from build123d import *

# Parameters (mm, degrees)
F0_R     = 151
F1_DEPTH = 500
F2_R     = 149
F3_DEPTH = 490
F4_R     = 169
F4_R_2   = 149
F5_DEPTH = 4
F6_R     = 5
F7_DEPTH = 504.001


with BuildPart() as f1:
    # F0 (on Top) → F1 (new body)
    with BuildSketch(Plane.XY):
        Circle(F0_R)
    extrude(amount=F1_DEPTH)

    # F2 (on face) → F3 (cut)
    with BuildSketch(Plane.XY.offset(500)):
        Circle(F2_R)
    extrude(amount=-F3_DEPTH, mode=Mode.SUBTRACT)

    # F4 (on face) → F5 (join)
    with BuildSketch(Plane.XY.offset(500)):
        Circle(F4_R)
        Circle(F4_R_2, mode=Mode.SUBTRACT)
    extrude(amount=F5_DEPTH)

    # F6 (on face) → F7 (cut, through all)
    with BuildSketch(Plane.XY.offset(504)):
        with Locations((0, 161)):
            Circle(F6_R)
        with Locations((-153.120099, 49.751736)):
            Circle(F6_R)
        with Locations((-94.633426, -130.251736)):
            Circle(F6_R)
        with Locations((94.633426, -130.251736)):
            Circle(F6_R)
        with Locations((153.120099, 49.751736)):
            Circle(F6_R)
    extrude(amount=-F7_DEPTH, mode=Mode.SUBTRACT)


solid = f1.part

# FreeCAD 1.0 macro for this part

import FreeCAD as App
import Part
import Sketcher

doc = App.newDocument("Part")
body = doc.addObject("PartDesign::Body", "Body")

# Sketch on XY plane
sketch1 = doc.addObject("Sketcher::SketchObject", "Sketch")
body.addObject(sketch1)
sketch1.AttachmentSupport = (doc.XY_Plane, [""])
sketch1.MapMode = "FlatFace"
sketch1.addGeometry(Part.Circle(App.Vector(0, 0, 0), App.Vector(0, 0, 1), 151), False)
sketch1.addConstraint(Sketcher.Constraint("Coincident", 0, 3, -1, 1))
sketch1.addConstraint(Sketcher.Constraint("Diameter", 0, 302.0))
pad1 = doc.addObject("PartDesign::Pad", "Pad")
body.addObject(pad1)
pad1.Profile = sketch1
pad1.Length = 500

# Sketch on XY plane
sketch2 = doc.addObject("Sketcher::SketchObject", "Sketch001")
body.addObject(sketch2)
sketch2.AttachmentSupport = (doc.XY_Plane, [""])
sketch2.MapMode = "FlatFace"
sketch2.AttachmentOffset = App.Placement(App.Vector(0, 0, 500), App.Rotation())
sketch2.addGeometry(Part.Circle(App.Vector(0, 0, 0), App.Vector(0, 0, 1), 149), False)
sketch2.addConstraint(Sketcher.Constraint("Coincident", 0, 3, -1, 1))
sketch2.addConstraint(Sketcher.Constraint("Diameter", 0, 298.0))
pocket1 = doc.addObject("PartDesign::Pocket", "Pocket")
body.addObject(pocket1)
pocket1.Profile = sketch2
pocket1.Length = 490

# Sketch on XY plane
sketch3 = doc.addObject("Sketcher::SketchObject", "Sketch002")
body.addObject(sketch3)
sketch3.AttachmentSupport = (doc.XY_Plane, [""])
sketch3.MapMode = "FlatFace"
sketch3.AttachmentOffset = App.Placement(App.Vector(0, 0, 500), App.Rotation())
sketch3.addGeometry(Part.Circle(App.Vector(0, 0, 0), App.Vector(0, 0, 1), 169), False)
sketch3.addGeometry(Part.Circle(App.Vector(0, 0, 0), App.Vector(0, 0, 1), 149), False)
sketch3.addConstraint(Sketcher.Constraint("Coincident", 0, 3, -1, 1))
sketch3.addConstraint(Sketcher.Constraint("Coincident", 1, 3, -1, 1))
sketch3.addConstraint(Sketcher.Constraint("Diameter", 0, 338.0))
sketch3.addConstraint(Sketcher.Constraint("Diameter", 1, 298.0))
pad2 = doc.addObject("PartDesign::Pad", "Pad001")
body.addObject(pad2)
pad2.Profile = sketch3
pad2.Length = 4

# Sketch on XY plane
sketch4 = doc.addObject("Sketcher::SketchObject", "Sketch003")
body.addObject(sketch4)
sketch4.AttachmentSupport = (doc.XY_Plane, [""])
sketch4.MapMode = "FlatFace"
sketch4.AttachmentOffset = App.Placement(App.Vector(0, 0, 504), App.Rotation())
sketch4.addGeometry(Part.Circle(App.Vector(0, 161, 0), App.Vector(0, 0, 1), 5), False)
sketch4.addGeometry(Part.Circle(App.Vector(-153.120099, 49.751736, 0), App.Vector(0, 0, 1), 5), False)
sketch4.addGeometry(Part.Circle(App.Vector(-94.633426, -130.251736, 0), App.Vector(0, 0, 1), 5), False)
sketch4.addGeometry(Part.Circle(App.Vector(94.633426, -130.251736, 0), App.Vector(0, 0, 1), 5), False)
sketch4.addGeometry(Part.Circle(App.Vector(153.120099, 49.751736, 0), App.Vector(0, 0, 1), 5), False)
sketch4.addConstraint(Sketcher.Constraint("Equal", 0, 1))
sketch4.addConstraint(Sketcher.Constraint("Equal", 1, 2))
sketch4.addConstraint(Sketcher.Constraint("Equal", 2, 3))
sketch4.addConstraint(Sketcher.Constraint("Equal", 3, 4))
sketch4.addConstraint(Sketcher.Constraint("Symmetric", 2, 3, 3, 3, -2))
sketch4.addConstraint(Sketcher.Constraint("Symmetric", 1, 3, 4, 3, -2))
sketch4.addConstraint(Sketcher.Constraint("PointOnObject", 0, 3, -2))
sketch4.addConstraint(Sketcher.Constraint("Diameter", 0, 10.0))
sketch4.addConstraint(Sketcher.Constraint("DistanceY", -1, 1, 0, 3, 161.0))
sketch4.addConstraint(Sketcher.Constraint("DistanceX", 1, 3, -1, 1, 153.120099))
sketch4.addConstraint(Sketcher.Constraint("DistanceY", 2, 3, 1, 3, 180.003472))
sketch4.addConstraint(Sketcher.Constraint("DistanceX", 2, 3, 3, 3, 189.266852))
sketch4.addConstraint(Sketcher.Constraint("DistanceY", -1, 1, 1, 3, 49.751736))
pocket2 = doc.addObject("PartDesign::Pocket", "Pocket001")
body.addObject(pocket2)
pocket2.Profile = sketch4
pocket2.Type = "ThroughAll"

doc.recompute()
